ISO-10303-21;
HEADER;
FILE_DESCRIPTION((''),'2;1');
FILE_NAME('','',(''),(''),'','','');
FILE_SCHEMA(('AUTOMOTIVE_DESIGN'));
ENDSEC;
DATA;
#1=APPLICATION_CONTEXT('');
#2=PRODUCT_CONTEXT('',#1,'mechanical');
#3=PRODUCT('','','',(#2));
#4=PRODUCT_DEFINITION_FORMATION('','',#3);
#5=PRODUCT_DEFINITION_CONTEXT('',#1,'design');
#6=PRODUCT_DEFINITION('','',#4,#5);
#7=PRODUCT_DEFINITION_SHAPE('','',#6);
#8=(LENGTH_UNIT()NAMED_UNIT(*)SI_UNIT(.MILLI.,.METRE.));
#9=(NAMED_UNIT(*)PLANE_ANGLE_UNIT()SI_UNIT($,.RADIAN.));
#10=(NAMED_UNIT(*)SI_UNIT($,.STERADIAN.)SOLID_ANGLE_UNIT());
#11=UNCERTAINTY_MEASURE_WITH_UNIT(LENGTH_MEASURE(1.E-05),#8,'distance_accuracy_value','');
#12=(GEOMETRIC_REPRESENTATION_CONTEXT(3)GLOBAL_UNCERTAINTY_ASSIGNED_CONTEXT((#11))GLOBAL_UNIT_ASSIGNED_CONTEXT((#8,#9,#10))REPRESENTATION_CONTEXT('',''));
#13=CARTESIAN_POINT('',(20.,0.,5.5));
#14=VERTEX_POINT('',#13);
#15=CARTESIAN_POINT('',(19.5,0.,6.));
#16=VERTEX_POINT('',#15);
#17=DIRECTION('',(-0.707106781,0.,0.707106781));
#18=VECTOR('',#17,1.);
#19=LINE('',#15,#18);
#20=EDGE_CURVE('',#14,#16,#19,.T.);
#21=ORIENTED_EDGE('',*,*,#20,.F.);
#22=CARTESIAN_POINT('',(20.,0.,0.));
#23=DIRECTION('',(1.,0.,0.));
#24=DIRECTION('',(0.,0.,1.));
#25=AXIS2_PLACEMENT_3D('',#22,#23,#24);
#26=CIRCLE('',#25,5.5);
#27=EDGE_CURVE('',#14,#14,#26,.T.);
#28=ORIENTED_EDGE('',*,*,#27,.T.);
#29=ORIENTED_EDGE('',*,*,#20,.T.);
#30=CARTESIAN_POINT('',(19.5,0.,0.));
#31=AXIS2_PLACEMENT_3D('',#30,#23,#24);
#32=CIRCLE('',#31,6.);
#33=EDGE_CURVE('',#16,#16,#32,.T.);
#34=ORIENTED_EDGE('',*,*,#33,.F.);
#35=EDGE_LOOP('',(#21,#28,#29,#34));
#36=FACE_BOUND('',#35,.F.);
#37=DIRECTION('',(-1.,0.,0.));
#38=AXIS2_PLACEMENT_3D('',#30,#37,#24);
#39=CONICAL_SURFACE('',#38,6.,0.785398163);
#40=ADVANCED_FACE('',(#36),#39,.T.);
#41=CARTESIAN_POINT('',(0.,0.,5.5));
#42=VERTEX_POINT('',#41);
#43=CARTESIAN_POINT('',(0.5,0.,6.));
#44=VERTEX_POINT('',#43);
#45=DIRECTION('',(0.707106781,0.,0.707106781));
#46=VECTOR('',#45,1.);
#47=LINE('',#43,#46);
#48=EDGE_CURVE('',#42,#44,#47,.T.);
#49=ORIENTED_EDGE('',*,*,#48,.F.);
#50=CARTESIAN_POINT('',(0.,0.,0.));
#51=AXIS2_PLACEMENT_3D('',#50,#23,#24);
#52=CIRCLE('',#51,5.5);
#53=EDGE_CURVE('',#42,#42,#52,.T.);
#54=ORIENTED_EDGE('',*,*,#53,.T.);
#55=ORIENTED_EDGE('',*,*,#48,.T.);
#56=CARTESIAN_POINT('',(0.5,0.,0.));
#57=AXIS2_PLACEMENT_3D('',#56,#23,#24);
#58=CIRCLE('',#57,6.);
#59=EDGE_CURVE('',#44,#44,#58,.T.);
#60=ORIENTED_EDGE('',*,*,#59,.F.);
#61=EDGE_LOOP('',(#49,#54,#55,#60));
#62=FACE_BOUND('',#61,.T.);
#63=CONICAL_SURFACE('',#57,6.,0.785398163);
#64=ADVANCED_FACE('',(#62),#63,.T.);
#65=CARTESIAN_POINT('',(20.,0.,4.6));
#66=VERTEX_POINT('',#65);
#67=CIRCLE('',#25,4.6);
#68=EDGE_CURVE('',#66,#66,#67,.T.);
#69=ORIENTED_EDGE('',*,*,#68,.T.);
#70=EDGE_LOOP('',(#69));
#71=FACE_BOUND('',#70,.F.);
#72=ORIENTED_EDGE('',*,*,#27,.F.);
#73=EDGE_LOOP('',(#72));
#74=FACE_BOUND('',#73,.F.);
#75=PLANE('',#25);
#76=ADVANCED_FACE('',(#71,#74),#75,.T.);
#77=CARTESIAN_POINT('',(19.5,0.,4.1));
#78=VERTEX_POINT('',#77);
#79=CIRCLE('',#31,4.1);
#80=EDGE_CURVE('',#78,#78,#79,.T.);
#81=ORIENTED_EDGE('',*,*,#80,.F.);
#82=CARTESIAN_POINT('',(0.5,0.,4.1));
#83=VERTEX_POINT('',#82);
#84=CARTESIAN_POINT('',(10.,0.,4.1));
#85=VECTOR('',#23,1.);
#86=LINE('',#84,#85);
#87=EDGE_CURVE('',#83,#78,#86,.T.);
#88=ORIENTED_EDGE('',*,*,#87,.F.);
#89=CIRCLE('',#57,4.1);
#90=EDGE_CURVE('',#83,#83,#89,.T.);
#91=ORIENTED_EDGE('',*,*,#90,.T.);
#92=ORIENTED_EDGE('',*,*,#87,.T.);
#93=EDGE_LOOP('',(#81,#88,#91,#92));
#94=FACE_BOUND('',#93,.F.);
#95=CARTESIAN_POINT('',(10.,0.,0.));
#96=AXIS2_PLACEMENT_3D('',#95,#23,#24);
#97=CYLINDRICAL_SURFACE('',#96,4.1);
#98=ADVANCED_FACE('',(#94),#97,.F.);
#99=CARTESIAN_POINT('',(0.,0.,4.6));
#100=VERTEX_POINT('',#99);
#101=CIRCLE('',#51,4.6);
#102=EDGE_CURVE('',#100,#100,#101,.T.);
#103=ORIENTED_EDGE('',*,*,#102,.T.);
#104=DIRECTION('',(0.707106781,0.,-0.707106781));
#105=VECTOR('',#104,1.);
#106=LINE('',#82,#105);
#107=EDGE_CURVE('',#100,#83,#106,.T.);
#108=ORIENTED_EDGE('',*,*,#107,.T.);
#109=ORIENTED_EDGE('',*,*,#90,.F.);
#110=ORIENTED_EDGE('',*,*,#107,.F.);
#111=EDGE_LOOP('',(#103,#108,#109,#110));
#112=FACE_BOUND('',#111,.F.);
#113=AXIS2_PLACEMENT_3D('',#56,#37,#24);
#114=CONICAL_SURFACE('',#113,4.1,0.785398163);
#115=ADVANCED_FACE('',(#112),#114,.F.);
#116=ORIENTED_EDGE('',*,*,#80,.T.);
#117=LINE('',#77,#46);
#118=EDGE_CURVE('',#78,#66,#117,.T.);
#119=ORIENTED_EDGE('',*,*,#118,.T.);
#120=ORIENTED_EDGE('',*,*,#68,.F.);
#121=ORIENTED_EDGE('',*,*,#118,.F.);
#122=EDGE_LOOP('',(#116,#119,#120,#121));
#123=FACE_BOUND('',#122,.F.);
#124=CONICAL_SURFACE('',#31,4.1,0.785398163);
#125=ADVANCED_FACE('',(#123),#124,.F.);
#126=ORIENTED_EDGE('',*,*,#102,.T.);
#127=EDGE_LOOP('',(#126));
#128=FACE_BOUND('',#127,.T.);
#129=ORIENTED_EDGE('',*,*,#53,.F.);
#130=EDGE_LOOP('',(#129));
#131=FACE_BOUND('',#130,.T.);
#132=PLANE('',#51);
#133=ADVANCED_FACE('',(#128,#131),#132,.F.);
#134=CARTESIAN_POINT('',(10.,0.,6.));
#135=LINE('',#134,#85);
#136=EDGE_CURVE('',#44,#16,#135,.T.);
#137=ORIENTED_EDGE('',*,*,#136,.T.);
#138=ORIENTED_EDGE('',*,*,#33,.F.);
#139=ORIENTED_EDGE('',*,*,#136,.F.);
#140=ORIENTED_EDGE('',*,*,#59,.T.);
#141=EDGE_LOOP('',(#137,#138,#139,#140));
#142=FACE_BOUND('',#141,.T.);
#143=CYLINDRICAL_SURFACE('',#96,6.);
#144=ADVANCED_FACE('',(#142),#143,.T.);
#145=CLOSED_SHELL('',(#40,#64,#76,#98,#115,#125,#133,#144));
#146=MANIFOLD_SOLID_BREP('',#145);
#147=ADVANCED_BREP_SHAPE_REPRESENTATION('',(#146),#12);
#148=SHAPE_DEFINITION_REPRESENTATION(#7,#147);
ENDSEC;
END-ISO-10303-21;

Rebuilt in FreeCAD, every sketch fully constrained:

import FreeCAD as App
import Part
import Sketcher
Q = App.Units.Quantity


def edges_at(feature, points):
    """Names of the edges that pass closest to the given points."""
    edges = feature.Shape.Edges
    near = lambda p: min(range(len(edges)), key=lambda i: edges[i].distToShape(Part.Vertex(*p))[0])
    return sorted({f"Edge{near(p) + 1}" for p in points})


def add_polygon(sketch, points):
    """Adds a closed chain of lines whose ends are joined by coincident constraints."""
    first, n = sketch.GeometryCount, len(points)
    for a, b in zip(points, points[1:] + points[:1]):
        sketch.addGeometry(Part.LineSegment(App.Vector(*a, 0), App.Vector(*b, 0)), False)
    for i in range(n):
        sketch.addConstraint(Sketcher.Constraint("Coincident", first + i, 2, first + (i + 1) % n, 1))

doc = App.newDocument("Part")
body = doc.addObject("PartDesign::Body", "Body")

# Sketch on XZ plane
sketch1 = body.newObject("Sketcher::SketchObject", "Sketch")
sketch1.AttachmentSupport = (doc.getObject("XZ_Plane"), [""])
sketch1.MapMode = "FlatFace"
add_polygon(sketch1, [(0, 6), (0, 4.1), (20, 4.1), (20, 6)])  # lines 0-3
sketch1.addConstraint([
    Sketcher.Constraint("Vertical", 0),
    Sketcher.Constraint("Horizontal", 1),
    Sketcher.Constraint("Vertical", 2),
    Sketcher.Constraint("Horizontal", 3),
    Sketcher.Constraint("PointOnObject", 0, 2, -2),
    Sketcher.Constraint("DistanceX", 1, 1, 1, 2, Q("20 mm")),
    Sketcher.Constraint("DistanceY", 0, 2, 0, 1, Q("1.9 mm")),
    Sketcher.Constraint("DistanceY", -1, 1, 2, 2, Q("6 mm")),
])
revolution = body.newObject("PartDesign::Revolution", "Revolution")
revolution.Profile = sketch1
revolution.ReferenceAxis = (sketch1, ["H_Axis"])
revolution.Angle = 360
doc.recompute()

chamfer = body.newObject("PartDesign::Chamfer", "Chamfer")
chamfer.Base = (revolution, edges_at(revolution, [
    (0, 0, -6),
    (20, 0, -6),
    (20, 0, -4.1),
    (0, 0, -4.1),
]))
chamfer.Size = 0.5

doc.recompute()
